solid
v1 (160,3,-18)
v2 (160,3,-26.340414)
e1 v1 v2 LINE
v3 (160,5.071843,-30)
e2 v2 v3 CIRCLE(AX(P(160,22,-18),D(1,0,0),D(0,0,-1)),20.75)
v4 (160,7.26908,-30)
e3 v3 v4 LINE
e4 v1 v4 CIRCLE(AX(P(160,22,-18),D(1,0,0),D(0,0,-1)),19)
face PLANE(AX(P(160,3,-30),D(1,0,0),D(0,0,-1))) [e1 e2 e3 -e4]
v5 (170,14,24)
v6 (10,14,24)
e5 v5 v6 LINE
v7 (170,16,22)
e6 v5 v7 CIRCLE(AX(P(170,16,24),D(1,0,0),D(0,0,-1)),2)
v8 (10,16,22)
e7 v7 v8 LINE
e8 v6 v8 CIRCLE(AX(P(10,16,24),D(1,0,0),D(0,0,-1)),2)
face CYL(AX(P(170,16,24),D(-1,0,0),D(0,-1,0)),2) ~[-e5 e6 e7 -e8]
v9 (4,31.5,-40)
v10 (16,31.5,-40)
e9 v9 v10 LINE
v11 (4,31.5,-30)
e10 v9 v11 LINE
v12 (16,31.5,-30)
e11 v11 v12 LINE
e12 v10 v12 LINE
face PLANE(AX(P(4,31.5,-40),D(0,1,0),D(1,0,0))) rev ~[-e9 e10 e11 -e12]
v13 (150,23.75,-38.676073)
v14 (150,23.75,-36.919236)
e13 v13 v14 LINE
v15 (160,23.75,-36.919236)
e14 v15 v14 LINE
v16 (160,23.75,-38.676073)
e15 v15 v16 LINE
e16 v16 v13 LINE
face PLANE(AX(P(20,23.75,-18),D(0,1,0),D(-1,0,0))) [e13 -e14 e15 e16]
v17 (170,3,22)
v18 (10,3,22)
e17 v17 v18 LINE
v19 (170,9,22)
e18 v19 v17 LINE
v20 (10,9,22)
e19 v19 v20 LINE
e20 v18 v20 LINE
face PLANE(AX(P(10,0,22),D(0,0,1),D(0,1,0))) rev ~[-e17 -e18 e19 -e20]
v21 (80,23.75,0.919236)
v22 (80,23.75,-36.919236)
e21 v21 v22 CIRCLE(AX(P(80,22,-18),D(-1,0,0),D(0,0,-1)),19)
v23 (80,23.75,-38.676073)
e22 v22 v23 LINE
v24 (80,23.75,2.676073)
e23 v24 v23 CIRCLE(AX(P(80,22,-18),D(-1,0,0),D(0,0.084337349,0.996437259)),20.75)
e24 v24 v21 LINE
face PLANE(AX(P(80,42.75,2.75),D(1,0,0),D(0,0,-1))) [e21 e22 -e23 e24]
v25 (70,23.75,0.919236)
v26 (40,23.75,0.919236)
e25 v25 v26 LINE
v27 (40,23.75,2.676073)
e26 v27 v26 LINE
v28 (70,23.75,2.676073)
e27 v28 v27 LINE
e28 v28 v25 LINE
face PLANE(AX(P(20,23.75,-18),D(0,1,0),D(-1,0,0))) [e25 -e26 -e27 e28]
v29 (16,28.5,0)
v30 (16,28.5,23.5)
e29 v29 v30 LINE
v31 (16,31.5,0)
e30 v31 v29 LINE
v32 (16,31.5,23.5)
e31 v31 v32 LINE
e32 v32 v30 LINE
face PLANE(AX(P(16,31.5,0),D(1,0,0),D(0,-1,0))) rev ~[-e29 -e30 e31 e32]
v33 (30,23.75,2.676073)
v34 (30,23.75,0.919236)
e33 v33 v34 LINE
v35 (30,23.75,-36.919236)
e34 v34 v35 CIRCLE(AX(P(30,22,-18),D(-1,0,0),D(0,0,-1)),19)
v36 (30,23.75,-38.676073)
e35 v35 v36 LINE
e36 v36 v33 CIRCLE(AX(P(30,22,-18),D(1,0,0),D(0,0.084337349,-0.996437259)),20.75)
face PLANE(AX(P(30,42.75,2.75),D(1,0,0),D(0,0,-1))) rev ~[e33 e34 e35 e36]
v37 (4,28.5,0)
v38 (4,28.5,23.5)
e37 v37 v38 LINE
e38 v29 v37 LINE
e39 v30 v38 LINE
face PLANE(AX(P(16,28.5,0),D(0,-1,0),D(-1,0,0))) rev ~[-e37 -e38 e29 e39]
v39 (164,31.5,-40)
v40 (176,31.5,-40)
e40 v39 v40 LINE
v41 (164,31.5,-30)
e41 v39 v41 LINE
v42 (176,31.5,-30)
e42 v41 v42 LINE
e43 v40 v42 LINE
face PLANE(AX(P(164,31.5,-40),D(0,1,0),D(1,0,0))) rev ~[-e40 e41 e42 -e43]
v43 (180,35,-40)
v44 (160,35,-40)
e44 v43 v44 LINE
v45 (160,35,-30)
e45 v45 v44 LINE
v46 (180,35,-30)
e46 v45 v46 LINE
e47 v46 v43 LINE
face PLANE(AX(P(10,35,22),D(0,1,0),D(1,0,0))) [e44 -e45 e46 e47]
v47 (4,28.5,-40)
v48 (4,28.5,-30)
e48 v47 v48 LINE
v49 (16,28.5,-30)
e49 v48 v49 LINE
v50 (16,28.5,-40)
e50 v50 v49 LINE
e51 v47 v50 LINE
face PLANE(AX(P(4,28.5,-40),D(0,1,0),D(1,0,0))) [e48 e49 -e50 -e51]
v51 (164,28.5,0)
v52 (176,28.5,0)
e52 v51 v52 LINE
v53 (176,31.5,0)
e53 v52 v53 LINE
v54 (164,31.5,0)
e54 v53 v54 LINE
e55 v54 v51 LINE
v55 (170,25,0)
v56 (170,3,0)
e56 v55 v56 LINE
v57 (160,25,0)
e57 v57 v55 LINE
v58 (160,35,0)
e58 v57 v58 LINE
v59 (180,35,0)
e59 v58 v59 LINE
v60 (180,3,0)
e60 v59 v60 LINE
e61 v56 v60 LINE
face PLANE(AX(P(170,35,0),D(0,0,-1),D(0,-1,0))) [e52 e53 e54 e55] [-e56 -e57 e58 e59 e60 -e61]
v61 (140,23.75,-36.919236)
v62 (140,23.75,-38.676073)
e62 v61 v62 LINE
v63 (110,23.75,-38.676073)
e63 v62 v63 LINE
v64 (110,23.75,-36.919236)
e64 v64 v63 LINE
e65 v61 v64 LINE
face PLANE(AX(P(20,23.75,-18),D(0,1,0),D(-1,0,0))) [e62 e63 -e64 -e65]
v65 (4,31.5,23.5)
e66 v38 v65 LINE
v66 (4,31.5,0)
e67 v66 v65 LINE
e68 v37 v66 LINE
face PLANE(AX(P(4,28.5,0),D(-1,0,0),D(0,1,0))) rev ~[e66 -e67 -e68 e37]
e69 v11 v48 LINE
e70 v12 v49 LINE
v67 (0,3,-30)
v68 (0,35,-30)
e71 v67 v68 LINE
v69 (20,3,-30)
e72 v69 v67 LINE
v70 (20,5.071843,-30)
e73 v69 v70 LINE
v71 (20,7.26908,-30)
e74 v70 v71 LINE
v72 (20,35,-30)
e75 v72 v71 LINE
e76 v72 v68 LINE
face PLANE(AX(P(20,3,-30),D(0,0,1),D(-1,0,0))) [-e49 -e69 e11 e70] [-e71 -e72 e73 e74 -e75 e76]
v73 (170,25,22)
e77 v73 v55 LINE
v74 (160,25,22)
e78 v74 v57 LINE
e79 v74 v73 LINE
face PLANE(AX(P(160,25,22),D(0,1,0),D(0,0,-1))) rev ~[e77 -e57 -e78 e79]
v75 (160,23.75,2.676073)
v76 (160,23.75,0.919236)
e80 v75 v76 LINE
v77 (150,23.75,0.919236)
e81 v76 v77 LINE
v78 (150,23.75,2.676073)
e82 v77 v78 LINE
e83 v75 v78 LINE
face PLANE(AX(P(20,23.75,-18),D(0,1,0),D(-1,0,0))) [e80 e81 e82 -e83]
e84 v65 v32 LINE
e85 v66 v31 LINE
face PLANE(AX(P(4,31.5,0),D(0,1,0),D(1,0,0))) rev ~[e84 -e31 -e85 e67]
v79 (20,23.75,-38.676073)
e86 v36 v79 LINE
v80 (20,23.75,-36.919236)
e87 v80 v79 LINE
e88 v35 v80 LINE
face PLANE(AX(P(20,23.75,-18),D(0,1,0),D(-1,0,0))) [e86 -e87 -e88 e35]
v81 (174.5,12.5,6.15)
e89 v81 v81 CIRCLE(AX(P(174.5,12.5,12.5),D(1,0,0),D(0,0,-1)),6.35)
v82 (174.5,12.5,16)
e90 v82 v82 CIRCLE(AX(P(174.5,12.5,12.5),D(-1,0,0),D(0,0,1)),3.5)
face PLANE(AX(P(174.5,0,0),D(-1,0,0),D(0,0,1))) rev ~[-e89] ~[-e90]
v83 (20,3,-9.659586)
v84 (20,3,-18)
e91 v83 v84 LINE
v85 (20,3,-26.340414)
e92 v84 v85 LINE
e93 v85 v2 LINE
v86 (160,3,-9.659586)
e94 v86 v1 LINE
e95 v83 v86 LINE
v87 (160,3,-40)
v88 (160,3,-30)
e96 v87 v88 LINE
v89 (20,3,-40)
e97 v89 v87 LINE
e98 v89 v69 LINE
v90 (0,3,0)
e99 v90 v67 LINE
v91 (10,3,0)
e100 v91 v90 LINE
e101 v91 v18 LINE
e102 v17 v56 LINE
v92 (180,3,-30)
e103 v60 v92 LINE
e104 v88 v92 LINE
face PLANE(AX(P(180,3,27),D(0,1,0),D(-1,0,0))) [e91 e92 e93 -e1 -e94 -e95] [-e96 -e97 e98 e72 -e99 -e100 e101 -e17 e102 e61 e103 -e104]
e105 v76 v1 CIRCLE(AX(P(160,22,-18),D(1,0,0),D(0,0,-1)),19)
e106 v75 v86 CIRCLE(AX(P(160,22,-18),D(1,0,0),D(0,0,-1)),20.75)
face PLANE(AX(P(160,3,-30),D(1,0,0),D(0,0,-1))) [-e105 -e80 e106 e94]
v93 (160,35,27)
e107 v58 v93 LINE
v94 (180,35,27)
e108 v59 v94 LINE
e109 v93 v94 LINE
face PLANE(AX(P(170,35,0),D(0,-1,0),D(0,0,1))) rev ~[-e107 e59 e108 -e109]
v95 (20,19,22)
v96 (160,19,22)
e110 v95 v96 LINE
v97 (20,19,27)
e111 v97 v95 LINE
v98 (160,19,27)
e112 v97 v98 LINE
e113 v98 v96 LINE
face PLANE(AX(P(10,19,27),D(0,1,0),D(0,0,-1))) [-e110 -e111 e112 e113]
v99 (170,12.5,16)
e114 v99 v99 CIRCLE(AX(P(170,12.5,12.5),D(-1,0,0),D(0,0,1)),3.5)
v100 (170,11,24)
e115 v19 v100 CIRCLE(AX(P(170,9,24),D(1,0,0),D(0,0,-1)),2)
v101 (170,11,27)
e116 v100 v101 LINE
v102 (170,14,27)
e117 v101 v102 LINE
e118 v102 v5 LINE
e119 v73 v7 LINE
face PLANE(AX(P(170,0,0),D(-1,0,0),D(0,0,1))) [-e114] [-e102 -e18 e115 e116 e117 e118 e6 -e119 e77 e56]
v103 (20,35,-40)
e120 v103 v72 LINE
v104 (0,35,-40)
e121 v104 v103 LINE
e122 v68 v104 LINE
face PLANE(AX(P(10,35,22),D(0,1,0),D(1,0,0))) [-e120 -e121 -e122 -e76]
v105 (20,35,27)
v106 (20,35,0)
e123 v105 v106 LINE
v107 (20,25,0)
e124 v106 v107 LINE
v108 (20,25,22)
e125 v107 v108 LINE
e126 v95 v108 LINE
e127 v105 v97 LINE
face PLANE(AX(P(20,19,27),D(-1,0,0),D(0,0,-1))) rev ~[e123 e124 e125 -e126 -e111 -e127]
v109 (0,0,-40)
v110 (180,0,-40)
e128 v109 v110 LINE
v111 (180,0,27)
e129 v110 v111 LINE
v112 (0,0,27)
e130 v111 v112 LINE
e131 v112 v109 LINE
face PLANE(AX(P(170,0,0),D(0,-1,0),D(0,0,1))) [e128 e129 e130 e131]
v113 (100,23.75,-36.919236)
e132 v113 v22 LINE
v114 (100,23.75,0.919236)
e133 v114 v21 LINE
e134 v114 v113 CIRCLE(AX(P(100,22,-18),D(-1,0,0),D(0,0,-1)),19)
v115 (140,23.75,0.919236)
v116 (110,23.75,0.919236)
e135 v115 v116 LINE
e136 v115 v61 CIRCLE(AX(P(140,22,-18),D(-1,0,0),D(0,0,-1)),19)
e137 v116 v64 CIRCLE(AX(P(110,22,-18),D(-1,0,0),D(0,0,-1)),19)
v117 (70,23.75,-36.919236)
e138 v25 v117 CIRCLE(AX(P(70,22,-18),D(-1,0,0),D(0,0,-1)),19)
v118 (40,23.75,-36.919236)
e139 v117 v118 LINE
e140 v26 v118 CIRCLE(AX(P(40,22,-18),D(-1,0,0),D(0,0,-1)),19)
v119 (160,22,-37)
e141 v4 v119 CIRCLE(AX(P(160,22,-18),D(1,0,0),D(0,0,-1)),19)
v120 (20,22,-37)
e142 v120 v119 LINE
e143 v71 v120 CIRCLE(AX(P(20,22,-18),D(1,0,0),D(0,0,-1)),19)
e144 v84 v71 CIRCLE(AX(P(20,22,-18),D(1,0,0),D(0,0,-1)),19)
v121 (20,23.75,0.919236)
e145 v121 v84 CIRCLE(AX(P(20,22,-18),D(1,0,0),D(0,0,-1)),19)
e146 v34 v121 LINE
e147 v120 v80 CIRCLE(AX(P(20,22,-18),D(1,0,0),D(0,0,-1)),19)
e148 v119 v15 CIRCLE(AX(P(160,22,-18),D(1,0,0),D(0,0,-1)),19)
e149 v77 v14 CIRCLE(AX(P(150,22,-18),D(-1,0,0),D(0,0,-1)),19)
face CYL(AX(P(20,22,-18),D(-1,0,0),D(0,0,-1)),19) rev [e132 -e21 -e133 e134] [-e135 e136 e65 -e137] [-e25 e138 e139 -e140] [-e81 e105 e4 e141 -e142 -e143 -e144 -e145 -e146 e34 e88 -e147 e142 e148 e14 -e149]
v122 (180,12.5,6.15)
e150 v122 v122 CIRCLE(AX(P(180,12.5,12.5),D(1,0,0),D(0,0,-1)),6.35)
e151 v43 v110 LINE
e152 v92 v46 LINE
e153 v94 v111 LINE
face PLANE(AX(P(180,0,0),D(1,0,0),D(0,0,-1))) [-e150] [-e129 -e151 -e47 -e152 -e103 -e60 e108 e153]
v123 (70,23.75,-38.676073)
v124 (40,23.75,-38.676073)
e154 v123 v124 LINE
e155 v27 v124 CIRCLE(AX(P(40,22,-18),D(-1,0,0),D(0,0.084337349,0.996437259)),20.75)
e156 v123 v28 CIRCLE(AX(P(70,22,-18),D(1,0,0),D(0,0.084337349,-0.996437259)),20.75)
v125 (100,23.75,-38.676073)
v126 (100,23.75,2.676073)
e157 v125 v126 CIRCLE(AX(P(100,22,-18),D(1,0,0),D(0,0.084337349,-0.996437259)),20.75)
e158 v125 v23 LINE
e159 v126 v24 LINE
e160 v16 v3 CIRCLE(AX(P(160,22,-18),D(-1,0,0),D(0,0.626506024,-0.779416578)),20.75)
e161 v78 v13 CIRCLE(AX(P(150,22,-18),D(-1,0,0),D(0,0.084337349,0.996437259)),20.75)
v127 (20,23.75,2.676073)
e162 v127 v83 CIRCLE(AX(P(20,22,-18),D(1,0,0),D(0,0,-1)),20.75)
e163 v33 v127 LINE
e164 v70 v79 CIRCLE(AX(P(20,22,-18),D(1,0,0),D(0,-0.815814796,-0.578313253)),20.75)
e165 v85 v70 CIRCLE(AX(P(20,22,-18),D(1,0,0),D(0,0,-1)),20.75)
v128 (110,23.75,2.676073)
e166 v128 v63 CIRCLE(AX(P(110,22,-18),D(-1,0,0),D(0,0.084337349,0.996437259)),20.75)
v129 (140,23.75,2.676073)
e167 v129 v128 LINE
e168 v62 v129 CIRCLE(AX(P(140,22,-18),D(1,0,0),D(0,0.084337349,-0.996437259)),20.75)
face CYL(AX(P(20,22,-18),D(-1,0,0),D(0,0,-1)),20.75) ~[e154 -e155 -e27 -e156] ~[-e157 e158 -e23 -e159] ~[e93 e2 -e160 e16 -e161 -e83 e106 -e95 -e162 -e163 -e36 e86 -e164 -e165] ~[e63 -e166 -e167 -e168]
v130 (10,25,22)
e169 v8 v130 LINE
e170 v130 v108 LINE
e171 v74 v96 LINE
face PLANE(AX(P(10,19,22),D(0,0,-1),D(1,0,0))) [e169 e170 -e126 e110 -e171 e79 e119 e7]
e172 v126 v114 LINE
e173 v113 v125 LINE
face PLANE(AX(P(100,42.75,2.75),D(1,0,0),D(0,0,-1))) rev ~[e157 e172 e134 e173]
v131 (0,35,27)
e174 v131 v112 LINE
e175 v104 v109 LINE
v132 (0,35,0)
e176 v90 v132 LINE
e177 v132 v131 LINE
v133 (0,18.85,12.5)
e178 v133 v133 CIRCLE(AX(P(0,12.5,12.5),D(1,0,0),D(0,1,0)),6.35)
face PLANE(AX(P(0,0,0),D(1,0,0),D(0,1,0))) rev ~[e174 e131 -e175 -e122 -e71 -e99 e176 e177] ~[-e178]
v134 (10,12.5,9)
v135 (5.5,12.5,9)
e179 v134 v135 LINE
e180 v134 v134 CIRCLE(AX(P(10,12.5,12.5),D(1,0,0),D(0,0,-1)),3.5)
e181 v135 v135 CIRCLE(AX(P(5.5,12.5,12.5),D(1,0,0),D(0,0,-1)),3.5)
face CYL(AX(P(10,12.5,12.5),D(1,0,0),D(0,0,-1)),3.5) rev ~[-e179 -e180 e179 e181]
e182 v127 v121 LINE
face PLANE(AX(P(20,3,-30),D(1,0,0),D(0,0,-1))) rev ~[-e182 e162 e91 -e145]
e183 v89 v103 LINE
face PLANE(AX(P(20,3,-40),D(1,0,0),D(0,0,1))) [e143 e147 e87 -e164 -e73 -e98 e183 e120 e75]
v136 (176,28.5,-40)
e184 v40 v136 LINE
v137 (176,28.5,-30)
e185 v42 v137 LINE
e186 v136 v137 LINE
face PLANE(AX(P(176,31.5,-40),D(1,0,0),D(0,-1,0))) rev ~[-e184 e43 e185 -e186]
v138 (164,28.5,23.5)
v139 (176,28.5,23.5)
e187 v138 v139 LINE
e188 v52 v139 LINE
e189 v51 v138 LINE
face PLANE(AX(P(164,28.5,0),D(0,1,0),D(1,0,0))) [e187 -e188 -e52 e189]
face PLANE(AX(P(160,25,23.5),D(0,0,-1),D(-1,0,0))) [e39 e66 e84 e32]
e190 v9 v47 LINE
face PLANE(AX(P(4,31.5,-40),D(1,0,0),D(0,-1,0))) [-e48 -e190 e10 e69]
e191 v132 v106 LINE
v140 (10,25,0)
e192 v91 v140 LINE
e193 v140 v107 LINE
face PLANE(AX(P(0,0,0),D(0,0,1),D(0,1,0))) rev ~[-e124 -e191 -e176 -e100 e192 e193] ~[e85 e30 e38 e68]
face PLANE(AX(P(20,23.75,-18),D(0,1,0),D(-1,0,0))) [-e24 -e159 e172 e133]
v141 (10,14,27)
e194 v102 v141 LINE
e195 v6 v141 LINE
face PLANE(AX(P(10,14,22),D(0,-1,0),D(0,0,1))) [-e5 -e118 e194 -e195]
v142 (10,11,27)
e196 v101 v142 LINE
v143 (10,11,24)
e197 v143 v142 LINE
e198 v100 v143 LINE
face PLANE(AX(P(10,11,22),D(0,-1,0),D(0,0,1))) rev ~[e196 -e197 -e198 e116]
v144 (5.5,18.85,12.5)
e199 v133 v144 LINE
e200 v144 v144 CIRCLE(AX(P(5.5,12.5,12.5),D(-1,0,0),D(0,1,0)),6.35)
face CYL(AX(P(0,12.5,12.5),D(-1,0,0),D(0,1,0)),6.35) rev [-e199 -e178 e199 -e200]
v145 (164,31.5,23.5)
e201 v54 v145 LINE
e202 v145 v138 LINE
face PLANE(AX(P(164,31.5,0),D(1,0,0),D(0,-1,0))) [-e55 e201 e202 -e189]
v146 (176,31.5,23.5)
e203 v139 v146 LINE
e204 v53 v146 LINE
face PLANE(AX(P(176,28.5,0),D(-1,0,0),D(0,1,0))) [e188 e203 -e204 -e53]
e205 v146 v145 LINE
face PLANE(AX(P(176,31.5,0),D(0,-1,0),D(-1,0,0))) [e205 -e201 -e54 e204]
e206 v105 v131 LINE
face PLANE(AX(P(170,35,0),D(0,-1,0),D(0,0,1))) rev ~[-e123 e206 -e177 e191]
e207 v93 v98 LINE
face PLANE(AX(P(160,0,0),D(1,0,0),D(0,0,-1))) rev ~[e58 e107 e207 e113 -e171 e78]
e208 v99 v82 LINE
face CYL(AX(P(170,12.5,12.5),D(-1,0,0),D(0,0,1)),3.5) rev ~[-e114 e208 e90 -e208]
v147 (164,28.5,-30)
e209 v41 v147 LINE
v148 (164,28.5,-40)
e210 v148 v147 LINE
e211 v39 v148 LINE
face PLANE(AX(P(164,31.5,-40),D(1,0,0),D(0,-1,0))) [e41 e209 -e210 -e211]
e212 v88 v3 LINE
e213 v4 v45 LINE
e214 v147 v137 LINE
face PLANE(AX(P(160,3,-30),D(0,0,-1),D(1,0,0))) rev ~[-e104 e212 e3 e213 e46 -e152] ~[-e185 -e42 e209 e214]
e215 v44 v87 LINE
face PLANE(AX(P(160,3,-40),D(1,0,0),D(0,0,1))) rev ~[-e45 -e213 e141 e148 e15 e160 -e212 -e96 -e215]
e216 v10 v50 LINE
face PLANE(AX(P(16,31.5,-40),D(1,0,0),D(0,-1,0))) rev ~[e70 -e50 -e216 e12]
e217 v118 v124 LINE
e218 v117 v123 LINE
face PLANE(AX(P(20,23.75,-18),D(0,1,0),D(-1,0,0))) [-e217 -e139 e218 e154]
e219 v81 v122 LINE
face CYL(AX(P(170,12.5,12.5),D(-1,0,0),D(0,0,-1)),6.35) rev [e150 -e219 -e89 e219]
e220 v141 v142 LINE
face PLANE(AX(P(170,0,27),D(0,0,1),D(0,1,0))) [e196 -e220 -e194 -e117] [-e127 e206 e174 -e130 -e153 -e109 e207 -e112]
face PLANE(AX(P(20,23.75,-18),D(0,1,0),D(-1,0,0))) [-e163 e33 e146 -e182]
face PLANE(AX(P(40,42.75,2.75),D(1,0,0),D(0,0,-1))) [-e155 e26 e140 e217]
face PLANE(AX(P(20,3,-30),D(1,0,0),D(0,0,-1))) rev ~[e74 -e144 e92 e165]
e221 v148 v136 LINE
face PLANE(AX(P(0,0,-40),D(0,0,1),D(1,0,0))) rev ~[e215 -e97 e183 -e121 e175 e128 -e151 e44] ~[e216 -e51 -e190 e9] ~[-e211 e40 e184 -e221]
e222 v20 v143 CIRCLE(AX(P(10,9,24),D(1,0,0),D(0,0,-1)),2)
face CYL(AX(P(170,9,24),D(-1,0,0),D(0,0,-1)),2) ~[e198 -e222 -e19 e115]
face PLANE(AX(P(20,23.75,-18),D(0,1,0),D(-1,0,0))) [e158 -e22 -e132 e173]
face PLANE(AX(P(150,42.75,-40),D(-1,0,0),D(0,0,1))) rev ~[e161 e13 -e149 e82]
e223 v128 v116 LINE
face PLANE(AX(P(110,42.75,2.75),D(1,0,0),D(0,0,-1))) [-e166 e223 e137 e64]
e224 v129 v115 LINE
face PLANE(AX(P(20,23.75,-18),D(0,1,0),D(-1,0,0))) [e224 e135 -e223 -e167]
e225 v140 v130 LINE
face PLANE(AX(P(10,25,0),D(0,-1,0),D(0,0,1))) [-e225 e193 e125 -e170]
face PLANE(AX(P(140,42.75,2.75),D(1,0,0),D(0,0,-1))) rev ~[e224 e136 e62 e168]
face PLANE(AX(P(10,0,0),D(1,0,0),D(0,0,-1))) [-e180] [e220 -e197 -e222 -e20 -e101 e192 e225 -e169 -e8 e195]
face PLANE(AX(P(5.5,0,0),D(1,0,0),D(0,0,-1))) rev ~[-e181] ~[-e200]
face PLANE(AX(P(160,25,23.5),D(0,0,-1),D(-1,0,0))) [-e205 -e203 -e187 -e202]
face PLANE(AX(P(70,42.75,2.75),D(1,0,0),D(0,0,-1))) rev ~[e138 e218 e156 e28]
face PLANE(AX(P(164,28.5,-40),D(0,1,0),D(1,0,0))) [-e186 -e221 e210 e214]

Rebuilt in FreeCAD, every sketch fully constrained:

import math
import FreeCAD as App
import Part
import Sketcher
from FreeCAD import Vector


def edges_at(feature, points):
    """Names of the edges that pass closest to the given points."""
    edges = feature.Shape.Edges
    near = lambda p: min(range(len(edges)), key=lambda i: edges[i].distToShape(Part.Vertex(*p))[0])
    return sorted({f"Edge{near(p) + 1}" for p in points})


def add_polygon(sketch, points):
    """Adds a closed chain of lines whose ends are joined by coincident constraints."""
    first, n = sketch.GeometryCount, len(points)
    for a, b in zip(points, points[1:] + points[:1]):
        sketch.addGeometry(Part.LineSegment(App.Vector(*a, 0), App.Vector(*b, 0)), False)
    for i in range(n):
        sketch.addConstraint(Sketcher.Constraint("Coincident", first + i, 2, first + (i + 1) % n, 1))

doc = App.newDocument("Part")
body = doc.addObject("PartDesign::Body", "Body")

sketch1 = body.newObject("Sketcher::SketchObject", "Sketch")
sketch1.AttachmentSupport = (doc.getObject("YZ_Plane"), [""])
sketch1.MapMode = "FlatFace"
add_polygon(sketch1, [(0, 27), (0, 0), (35, 0), (35, 27)])
sketch1.addGeometry(Part.Circle(Vector(12, 12, 0), Vector(0, 0, 1), 6), False)
sketch1.addConstraint([
    Sketcher.Constraint("Vertical", 0),
    Sketcher.Constraint("Horizontal", 1),
    Sketcher.Constraint("Vertical", 2),
    Sketcher.Constraint("Horizontal", 3),
    Sketcher.Constraint("Coincident", 0, 2, -1, 1),
    Sketcher.Constraint("Diameter", 4, 12.7),
    Sketcher.Constraint("DistanceX", 1, 1, 1, 2, 35.0),
    Sketcher.Constraint("DistanceY", 0, 2, 0, 1, 27.0),
    Sketcher.Constraint("DistanceX", -1, 1, 4, 3, 12.5),
    Sketcher.Constraint("DistanceY", -1, 1, 4, 3, 12.5),
])
pad1 = body.newObject("PartDesign::Pad", "Pad")
pad1.Profile = sketch1
pad1.Length = 10

sketch2 = body.newObject("Sketcher::SketchObject", "Sketch001")
sketch2.AttachmentSupport = (doc.getObject("YZ_Plane"), [""])
sketch2.MapMode = "FlatFace"
sketch2.AttachmentOffset = App.Placement(Vector(0, 0, 10), App.Rotation())
add_polygon(sketch2, [(25, 0), (35, 0), (35, 27), (25, 27)])
sketch2.addConstraint([
    Sketcher.Constraint("Horizontal", 0),
    Sketcher.Constraint("Vertical", 1),
    Sketcher.Constraint("Horizontal", 2),
    Sketcher.Constraint("Vertical", 3),
    Sketcher.Constraint("PointOnObject", 0, 2, -1),
    Sketcher.Constraint("DistanceX", 0, 1, 0, 2, 10.0),
    Sketcher.Constraint("DistanceY", 1, 1, 1, 2, 27.0),
    Sketcher.Constraint("DistanceX", -1, 1, 0, 2, 35.0),
])
pad2 = body.newObject("PartDesign::Pad", "Pad001")
pad2.Profile = sketch2
pad2.Length = 10

sketch3 = body.newObject("Sketcher::SketchObject", "Sketch002")
sketch3.AttachmentSupport = (doc.getObject("YZ_Plane"), [""])
sketch3.MapMode = "FlatFace"
sketch3.AttachmentOffset = App.Placement(Vector(0, 0, 10), App.Rotation())
add_polygon(sketch3, [(19, 22), (19, 27), (14, 27), (14, 22)])
add_polygon(sketch3, [(11, 22), (11, 27), (0, 27), (0, 22)])
sketch3.addConstraint([
    Sketcher.Constraint("Vertical", 0),
    Sketcher.Constraint("Horizontal", 1),
    Sketcher.Constraint("Vertical", 2),
    Sketcher.Constraint("Horizontal", 3),
    Sketcher.Constraint("Vertical", 4),
    Sketcher.Constraint("Horizontal", 5),
    Sketcher.Constraint("Vertical", 6),
    Sketcher.Constraint("Horizontal", 7),
    Sketcher.Constraint("PointOnObject", 5, 2, -2),
    Sketcher.Constraint("Horizontal", 1, 2, 4, 2),
    Sketcher.Constraint("Horizontal", 3, 2, 6, 2),
    Sketcher.Constraint("Equal", 3, 0),
    Sketcher.Constraint("DistanceX", 1, 2, 1, 1, 5.0),
    Sketcher.Constraint("DistanceX", 5, 2, 5, 1, 11.0),
    Sketcher.Constraint("DistanceX", -1, 1, 0, 2, 19.0),
    Sketcher.Constraint("DistanceY", -1, 1, 0, 2, 27.0),
])
pad3 = body.newObject("PartDesign::Pad", "Pad002")
pad3.Profile = sketch3
pad3.Length = 150

sketch4 = body.newObject("Sketcher::SketchObject", "Sketch003")
sketch4.AttachmentSupport = (doc.getObject("XZ_Plane"), [""])
sketch4.MapMode = "FlatFace"
sketch4.AttachmentOffset = App.Placement(Vector(0, 0, -19), App.Rotation())
add_polygon(sketch4, [(10, 22), (10, 27), (20, 27), (20, 22)])
sketch4.addConstraint([
    Sketcher.Constraint("Vertical", 0),
    Sketcher.Constraint("Horizontal", 1),
    Sketcher.Constraint("Vertical", 2),
    Sketcher.Constraint("Horizontal", 3),
    Sketcher.Constraint("DistanceX", 1, 1, 1, 2, 10.0),
    Sketcher.Constraint("DistanceX", -1, 1, 0, 2, 10.0),
    Sketcher.Constraint("DistanceY", 0, 1, 0, 2, 5.0),
    Sketcher.Constraint("DistanceY", -1, 1, 0, 2, 27.0),
])
pad4 = body.newObject("PartDesign::Pad", "Pad003")
pad4.Profile = sketch4
pad4.Length = 7.5
pad4.Reversed = True

sketch5 = body.newObject("Sketcher::SketchObject", "Sketch004")
sketch5.AttachmentSupport = (doc.getObject("YZ_Plane"), [""])
sketch5.MapMode = "FlatFace"
sketch5.AttachmentOffset = App.Placement(Vector(0, 0, 160), App.Rotation())
add_polygon(sketch5, [(35, 27), (14, 27), (14, 22), (25, 22), (25, 0), (35, 0)])
add_polygon(sketch5, [(0, 22), (11, 22), (11, 27), (0, 27)])
sketch5.addConstraint([
    Sketcher.Constraint("Horizontal", 0),
    Sketcher.Constraint("Vertical", 1),
    Sketcher.Constraint("Horizontal", 2),
    Sketcher.Constraint("Vertical", 3),
    Sketcher.Constraint("Horizontal", 4),
    Sketcher.Constraint("Vertical", 5),
    Sketcher.Constraint("Horizontal", 6),
    Sketcher.Constraint("Vertical", 7),
    Sketcher.Constraint("Horizontal", 8),
    Sketcher.Constraint("Vertical", 9),
    Sketcher.Constraint("PointOnObject", 3, 2, -1),
    Sketcher.Constraint("PointOnObject", 8, 2, -2),
    Sketcher.Constraint("Horizontal", 2, 2, 6, 2),
    Sketcher.Constraint("Horizontal", 5, 2, 7, 2),
    Sketcher.Constraint("Equal", 2, 6),
    Sketcher.Constraint("DistanceX", 0, 2, 0, 1, 21.0),
    Sketcher.Constraint("DistanceX", 2, 1, 2, 2, 11.0),
    Sketcher.Constraint("DistanceY", 1, 2, 1, 1, 5.0),
    Sketcher.Constraint("DistanceY", 3, 2, 3, 1, 22.0),
    Sketcher.Constraint("DistanceX", -1, 1, 0, 2, 14.0),
])
pad5 = body.newObject("PartDesign::Pad", "Pad004")
pad5.Profile = sketch5
pad5.Length = 10

sketch6 = body.newObject("Sketcher::SketchObject", "Sketch005")
sketch6.AttachmentSupport = (doc.getObject("YZ_Plane"), [""])
sketch6.MapMode = "FlatFace"
sketch6.AttachmentOffset = App.Placement(Vector(0, 0, 170), App.Rotation())
add_polygon(sketch6, [(0, 0), (35, 0), (35, 27), (0, 27)])
sketch6.addGeometry(Part.Circle(Vector(12, 12, 0), Vector(0, 0, 1), 6), False)
sketch6.addConstraint([
    Sketcher.Constraint("Horizontal", 0),
    Sketcher.Constraint("Vertical", 1),
    Sketcher.Constraint("Horizontal", 2),
    Sketcher.Constraint("Vertical", 3),
    Sketcher.Constraint("Coincident", 3, 2, -1, 1),
    Sketcher.Constraint("Diameter", 4, 12.7),
    Sketcher.Constraint("DistanceX", 0, 1, 0, 2, 35.0),
    Sketcher.Constraint("DistanceY", 1, 1, 1, 2, 27.0),
    Sketcher.Constraint("DistanceX", -1, 1, 4, 3, 12.5),
    Sketcher.Constraint("DistanceY", -1, 1, 4, 3, 12.5),
])
pad6 = body.newObject("PartDesign::Pad", "Pad005")
pad6.Profile = sketch6
pad6.Length = 10
doc.recompute()

fillet = body.newObject("PartDesign::Fillet", "Fillet")
fillet.Base = (pad6, edges_at(pad6, [(90, 11, 22), (90, 14, 22)]))
fillet.Radius = 2

sketch7 = body.newObject("Sketcher::SketchObject", "Sketch006")
sketch7.AttachmentSupport = (doc.getObject("YZ_Plane"), [""])
sketch7.MapMode = "FlatFace"
sketch7.AttachmentOffset = App.Placement(Vector(0, 0, 20), App.Rotation())
add_polygon(sketch7, [(32, 6.5), (35, 6.5), (35, 20.5), (32, 20.5)])
sketch7.addConstraint([
    Sketcher.Constraint("Horizontal", 0),
    Sketcher.Constraint("Vertical", 1),
    Sketcher.Constraint("Horizontal", 2),
    Sketcher.Constraint("Vertical", 3),
    Sketcher.Constraint("DistanceX", 0, 1, 0, 2, 3.0),
    Sketcher.Constraint("DistanceY", 1, 1, 1, 2, 14.0),
    Sketcher.Constraint("DistanceX", -1, 1, 0, 2, 35.0),
    Sketcher.Constraint("DistanceY", -1, 1, 0, 2, 6.5),
])
pad7 = body.newObject("PartDesign::Pad", "Pad006")
pad7.Profile = sketch7
pad7.Length = 140

sketch8 = body.newObject("Sketcher::SketchObject", "Sketch007")
sketch8.AttachmentSupport = (doc.getObject("XY_Plane"), [""])
sketch8.MapMode = "FlatFace"
add_polygon(sketch8, [(176, 28.5), (164, 28.5), (164, 31.5), (176, 31.5)])
add_polygon(sketch8, [(4, 28.5), (4, 31.5), (16, 31.5), (16, 28.5)])
sketch8.addConstraint([
    Sketcher.Constraint("Horizontal", 0),
    Sketcher.Constraint("Vertical", 1),
    Sketcher.Constraint("Horizontal", 2),
    Sketcher.Constraint("Vertical", 3),
    Sketcher.Constraint("Vertical", 4),
    Sketcher.Constraint("Horizontal", 5),
    Sketcher.Constraint("Vertical", 6),
    Sketcher.Constraint("Horizontal", 7),
    Sketcher.Constraint("Horizontal", 2, 2, 4, 2),
    Sketcher.Constraint("Horizontal", 3, 2, 6, 2),
    Sketcher.Constraint("Equal", 2, 5),
    Sketcher.Constraint("DistanceX", 0, 2, 0, 1, 12.0),
    Sketcher.Constraint("DistanceY", 1, 1, 1, 2, 3.0),
    Sketcher.Constraint("DistanceX", -1, 1, 0, 2, 164.0),
    Sketcher.Constraint("DistanceX", -1, 1, 4, 2, 4.0),
    Sketcher.Constraint("DistanceY", -1, 1, 0, 2, 28.5),
])
pocket1 = body.newObject("PartDesign::Pocket", "Pocket")
pocket1.Profile = sketch8
pocket1.Length = 23.5
pocket1.Reversed = True

sketch9 = body.newObject("Sketcher::SketchObject", "Sketch008")
sketch9.AttachmentSupport = (doc.getObject("YZ_Plane"), [""])
sketch9.MapMode = "FlatFace"
sketch9.AttachmentOffset = App.Placement(Vector(0, 0, 170), App.Rotation())
sketch9.addGeometry([
    Part.Circle(Vector(12.5, 12.5, 0), Vector(0, 0, 1), 6.3),
    Part.Circle(Vector(12.5, 12.5, 0), Vector(0, 0, 1), 3.5),
], False)
sketch9.addConstraint([
    Sketcher.Constraint("Coincident", 1, 3, 0, 3),
    Sketcher.Constraint("Diameter", 1, 7.0),
    Sketcher.Constraint("Diameter", 0, 12.7),
    Sketcher.Constraint("DistanceX", -1, 1, 0, 3, 12.5),
    Sketcher.Constraint("DistanceY", -1, 1, 0, 3, 12.5),
])
pad8 = body.newObject("PartDesign::Pad", "Pad007")
pad8.Profile = sketch9
pad8.Length = 4.5

sketch10 = body.newObject("Sketcher::SketchObject", "Sketch009")
sketch10.AttachmentSupport = (doc.getObject("YZ_Plane"), [""])
sketch10.MapMode = "FlatFace"
sketch10.AttachmentOffset = App.Placement(Vector(0, 0, 10), App.Rotation())
sketch10.addGeometry([
    Part.Circle(Vector(12.5, 12.5, 0), Vector(0, 0, 1), 6.3),
    Part.Circle(Vector(12.5, 12.5, 0), Vector(0, 0, 1), 3.5),
], False)
sketch10.addConstraint([
    Sketcher.Constraint("Coincident", 1, 3, 0, 3),
    Sketcher.Constraint("Diameter", 1, 7.0),
    Sketcher.Constraint("Diameter", 0, 12.7),
    Sketcher.Constraint("DistanceX", -1, 1, 0, 3, 12.5),
    Sketcher.Constraint("DistanceY", -1, 1, 0, 3, 12.5),
])
pad9 = body.newObject("PartDesign::Pad", "Pad008")
pad9.Profile = sketch10
pad9.Length = 4.5
pad9.Reversed = True

sketch11 = body.newObject("Sketcher::SketchObject", "Sketch010")
sketch11.AttachmentSupport = (doc.getObject("XY_Plane"), [""])
sketch11.MapMode = "FlatFace"
sketch11.AttachmentOffset = App.Placement(Vector(0, 0, 27), App.Rotation())
add_polygon(sketch11, [(180, 3), (0, 3), (0, 0), (180, 0)])
sketch11.addConstraint([
    Sketcher.Constraint("Horizontal", 0),
    Sketcher.Constraint("Vertical", 1),
    Sketcher.Constraint("Horizontal", 2),
    Sketcher.Constraint("Vertical", 3),
    Sketcher.Constraint("Coincident", 1, 2, -1, 1),
    Sketcher.Constraint("DistanceY", 1, 2, 1, 1, 3.0),
    Sketcher.Constraint("DistanceX", 0, 2, 0, 1, 180.0),
])
pad10 = body.newObject("PartDesign::Pad", "Pad009")
pad10.Profile = sketch11
pad10.Length = 67
pad10.Reversed = True

sketch12 = body.newObject("Sketcher::SketchObject", "Sketch011")
sketch12.AttachmentSupport = (doc.getObject("XZ_Plane"), [""])
sketch12.MapMode = "FlatFace"
sketch12.AttachmentOffset = App.Placement(Vector(0, 0, -3), App.Rotation())
sketch12.addGeometry([
    Part.ArcOfCircle(Part.Circle(Vector(90, -20, 0), Vector(0, 0, 1), 20), math.radians(0), math.radians(180)),
    Part.ArcOfCircle(Part.Circle(Vector(90, -20, 0), Vector(0, 0, 1), 20), math.radians(180), math.radians(360)),
    Part.Circle(Vector(90, -20, 0), Vector(0, 0, 1), 19),
    Part.Circle(Vector(50, -20, 0), Vector(0, 0, 1), 20),
    Part.Circle(Vector(50, -20, 0), Vector(0, 0, 1), 19),
    Part.Circle(Vector(130, -20, 0), Vector(0, 0, 1), 20),
    Part.Circle(Vector(130, -20, 0), Vector(0, 0, 1), 19),
], False)
sketch12.addConstraint([
    Sketcher.Constraint("Tangent", 0, 1, 1, 2),
    Sketcher.Constraint("Coincident", 1, 1, 0, 2),
    Sketcher.Constraint("Coincident", 2, 3, 0, 3),
    Sketcher.Constraint("Coincident", 4, 3, 3, 3),
    Sketcher.Constraint("Coincident", 6, 3, 5, 3),
    Sketcher.Constraint("Equal", 1, 3),
    Sketcher.Constraint("Equal", 2, 4),
    Sketcher.Constraint("Equal", 3, 5),
    Sketcher.Constraint("Equal", 4, 6),
    Sketcher.Constraint("Horizontal", 2, 3, 3, 3),
    Sketcher.Constraint("Horizontal", 4, 3, 5, 3),
    Sketcher.Constraint("Horizontal", 6, 3, 0, 1),
    Sketcher.Constraint("Horizontal", 0, 1, 1, 1),
    Sketcher.Constraint("Diameter", 2, 38.0),
    Sketcher.Constraint("Diameter", 3, 40.0),
    Sketcher.Constraint("DistanceX", -1, 1, 0, 3, 90.0),
    Sketcher.Constraint("DistanceY", 0, 3, -1, 1, 20.0),
    Sketcher.Constraint("DistanceX", -1, 1, 3, 3, 50.0),
    Sketcher.Constraint("DistanceX", -1, 1, 5, 3, 130.0),
])
pad11 = body.newObject("PartDesign::Pad", "Pad010")
pad11.Profile = sketch12
pad11.Length = 30
pad11.Reversed = True

sketch13 = body.newObject("Sketcher::SketchObject", "Sketch012")
sketch13.AttachmentSupport = (doc.getObject("XZ_Plane"), [""])
sketch13.MapMode = "FlatFace"
sketch13.AttachmentOffset = App.Placement(Vector(0, 0, -3), App.Rotation())
add_polygon(sketch13, [(180, -40), (160, -40), (160, -30), (180, -30)])
add_polygon(sketch13, [(0, -40), (0, -30), (20, -30), (20, -40)])
sketch13.addConstraint([
    Sketcher.Constraint("Horizontal", 0),
    Sketcher.Constraint("Vertical", 1),
    Sketcher.Constraint("Horizontal", 2),
    Sketcher.Constraint("Vertical", 3),
    Sketcher.Constraint("Vertical", 4),
    Sketcher.Constraint("Horizontal", 5),
    Sketcher.Constraint("Vertical", 6),
    Sketcher.Constraint("Horizontal", 7),
    Sketcher.Constraint("PointOnObject", 4, 2, -2),
    Sketcher.Constraint("Horizontal", 2, 2, 4, 2),
    Sketcher.Constraint("Horizontal", 3, 2, 6, 2),
    Sketcher.Constraint("Equal", 2, 5),
    Sketcher.Constraint("DistanceY", 1, 1, 1, 2, 10.0),
    Sketcher.Constraint("DistanceX", 0, 2, 0, 1, 20.0),
    Sketcher.Constraint("DistanceX", -1, 1, 0, 2, 160.0),
    Sketcher.Constraint("DistanceY", 0, 2, -1, 1, 40.0),
])
pad12 = body.newObject("PartDesign::Pad", "Pad011")
pad12.Profile = sketch13
pad12.Length = 32
pad12.Reversed = True

sketch14 = body.newObject("Sketcher::SketchObject", "Sketch013")
sketch14.AttachmentSupport = (doc.getObject("XY_Plane"), [""])
sketch14.MapMode = "FlatFace"
sketch14.AttachmentOffset = App.Placement(Vector(0, 0, -40), App.Rotation())
add_polygon(sketch14, [(16, 28.5), (4, 28.5), (4, 31.5), (16, 31.5)])
add_polygon(sketch14, [(176, 28.5), (164, 28.5), (164, 31.5), (176, 31.5)])
sketch14.addConstraint([
    Sketcher.Constraint("Horizontal", 0),
    Sketcher.Constraint("Vertical", 1),
    Sketcher.Constraint("Horizontal", 2),
    Sketcher.Constraint("Vertical", 3),
    Sketcher.Constraint("Horizontal", 4),
    Sketcher.Constraint("Vertical", 5),
    Sketcher.Constraint("Horizontal", 6),
    Sketcher.Constraint("Vertical", 7),
    Sketcher.Constraint("Horizontal", 3, 2, 4, 2),
    Sketcher.Constraint("Horizontal", 2, 2, 5, 2),
    Sketcher.Constraint("Equal", 2, 4),
    Sketcher.Constraint("DistanceX", 0, 2, 0, 1, 12.0),
    Sketcher.Constraint("DistanceY", 1, 1, 1, 2, 3.0),
    Sketcher.Constraint("DistanceX", -1, 1, 0, 2, 4.0),
    Sketcher.Constraint("DistanceX", -1, 1, 4, 2, 164.0),
    Sketcher.Constraint("DistanceY", -1, 1, 0, 2, 28.5),
])
pocket2 = body.newObject("PartDesign::Pocket", "Pocket001")
pocket2.Profile = sketch14
pocket2.Length = 10
pocket2.Reversed = True

sketch15 = body.newObject("Sketcher::SketchObject", "Sketch014")
sketch15.AttachmentSupport = (doc.getObject("XZ_Plane"), [""])
sketch15.MapMode = "FlatFace"
sketch15.AttachmentOffset = App.Placement(Vector(0, 0, -33), App.Rotation())
add_polygon(sketch15, [(26, 3), (157, 3), (157, -46), (26, -46)])
sketch15.addConstraint([
    Sketcher.Constraint("Horizontal", 0),
    Sketcher.Constraint("Vertical", 1),
    Sketcher.Constraint("Horizontal", 2),
    Sketcher.Constraint("Vertical", 3),
    Sketcher.Constraint("DistanceX", 0, 1, 0, 2, 131.1087),
    Sketcher.Constraint("DistanceY", 1, 2, 1, 1, 48.8594),
    Sketcher.Constraint("DistanceX", -1, 1, 0, 2, 157.296),
    Sketcher.Constraint("DistanceY", 1, 2, -1, 1, 45.727),
])
pocket3 = body.newObject("PartDesign::Pocket", "Pocket002")
pocket3.Profile = sketch15
pocket3.Length = 30
pocket3.Reversed = True

sketch16 = body.newObject("Sketcher::SketchObject", "Sketch015")
sketch16.AttachmentSupport = (doc.getObject("XZ_Plane"), [""])
sketch16.MapMode = "FlatFace"
sketch16.AttachmentOffset = App.Placement(Vector(0, 0, -3), App.Rotation())
sketch16.addGeometry([
    Part.ArcOfCircle(Part.Circle(Vector(90, -17, 0), Vector(0, 0, 1), 21), math.radians(0), math.radians(180)),
    Part.ArcOfCircle(Part.Circle(Vector(90, -17, 0), Vector(0, 0, 1), 21), math.radians(180), math.radians(360)),
    Part.Circle(Vector(90, -17, 0), Vector(0, 0, 1), 19),
    Part.Circle(Vector(48, -17, 0), Vector(0, 0, 1), 21),
    Part.Circle(Vector(48, -17, 0), Vector(0, 0, 1), 19),
    Part.Circle(Vector(132, -17, 0), Vector(0, 0, 1), 21),
    Part.Circle(Vector(132, -17, 0), Vector(0, 0, 1), 19),
], False)
sketch16.addConstraint([
    Sketcher.Constraint("Tangent", 0, 1, 1, 2),
    Sketcher.Constraint("Coincident", 1, 1, 0, 2),
    Sketcher.Constraint("Coincident", 2, 3, 0, 3),
    Sketcher.Constraint("Coincident", 4, 3, 3, 3),
    Sketcher.Constraint("Coincident", 6, 3, 5, 3),
    Sketcher.Constraint("Equal", 1, 3),
    Sketcher.Constraint("Equal", 2, 4),
    Sketcher.Constraint("Equal", 3, 5),
    Sketcher.Constraint("Equal", 4, 6),
    Sketcher.Constraint("Horizontal", 2, 3, 3, 3),
    Sketcher.Constraint("Horizontal", 4, 3, 5, 3),
    Sketcher.Constraint("Horizontal", 6, 3, 0, 1),
    Sketcher.Constraint("Horizontal", 0, 1, 1, 1),
    Sketcher.Constraint("Diameter", 2, 38.0),
    Sketcher.Constraint("Diameter", 3, 41.5),
    Sketcher.Constraint("DistanceX", 3, 3, 0, 3, 41.5),
    Sketcher.Constraint("DistanceX", 0, 3, 5, 3, 41.5),
    Sketcher.Constraint("DistanceX", -1, 1, 0, 3, 90.0),
    Sketcher.Constraint("DistanceY", 0, 3, -1, 1, 16.75),
])
pad13 = body.newObject("PartDesign::Pad", "Pad012")
pad13.Profile = sketch16
pad13.Length = 45
pad13.Reversed = True

sketch17 = body.newObject("Sketcher::SketchObject", "Sketch016")
sketch17.AttachmentSupport = (doc.getObject("XZ_Plane"), [""])
sketch17.MapMode = "FlatFace"
sketch17.AttachmentOffset = App.Placement(Vector(0, 0, -35), App.Rotation())
add_polygon(sketch17, [(20, 6), (20, 20), (160, 20), (160, 6)])
sketch17.addConstraint([
    Sketcher.Constraint("Vertical", 0),
    Sketcher.Constraint("Horizontal", 1),
    Sketcher.Constraint("Vertical", 2),
    Sketcher.Constraint("Horizontal", 3),
    Sketcher.Constraint("DistanceX", 1, 1, 1, 2, 140.0),
    Sketcher.Constraint("DistanceY", 0, 1, 0, 2, 14.0),
    Sketcher.Constraint("DistanceX", -1, 1, 0, 2, 20.0),
    Sketcher.Constraint("DistanceY", -1, 1, 0, 2, 20.5),
])
pocket4 = body.newObject("PartDesign::Pocket", "Pocket003")
pocket4.Profile = sketch17
pocket4.Length = 5
pocket4.Reversed = True

sketch18 = body.newObject("Sketcher::SketchObject", "Sketch017")
sketch18.AttachmentSupport = (doc.getObject("XZ_Plane"), [""])
sketch18.MapMode = "FlatFace"
sketch18.AttachmentOffset = App.Placement(Vector(0, 0, -48), App.Rotation())
add_polygon(sketch18, [(157, -46), (26, -46), (26, 7), (157, 7)])
sketch18.addConstraint([
    Sketcher.Constraint("Horizontal", 0),
    Sketcher.Constraint("Vertical", 1),
    Sketcher.Constraint("Horizontal", 2),
    Sketcher.Constraint("Vertical", 3),
    Sketcher.Constraint("DistanceY", 1, 1, 1, 2, 52.37),
    Sketcher.Constraint("DistanceX", 0, 2, 0, 1, 130.3427),
    Sketcher.Constraint("DistanceY", -1, 1, 1, 2, 6.795),
    Sketcher.Constraint("DistanceX", -1, 1, 0, 2, 26.1578),
])
pocket5 = body.newObject("PartDesign::Pocket", "Pocket004")
pocket5.Profile = sketch18
pocket5.Length = 45
pocket5.Reversed = True

sketch19 = body.newObject("Sketcher::SketchObject", "Sketch018")
sketch19.AttachmentSupport = (doc.getObject("YZ_Plane"), [""])
sketch19.MapMode = "FlatFace"
sketch19.AttachmentOffset = App.Placement(Vector(0, 0, 20), App.Rotation())
sketch19.addGeometry([
    Part.LineSegment(Vector(3, -10, 0), Vector(3, -18, 0)),
    Part.LineSegment(Vector(3, -18, 0), Vector(3, -26, 0)),
    Part.ArcOfCircle(Part.Circle(Vector(22, -18, 0), Vector(0, 0, 1), 21), math.radians(-156), math.radians(156)),
    Part.Circle(Vector(22, -18, 0), Vector(0, 0, 1), 19),
], False)
sketch19.addConstraint([
    Sketcher.Constraint("Coincident", 0, 2, 1, 1),
    Sketcher.Constraint("Coincident", 1, 2, 2, 1),
    Sketcher.Constraint("Coincident", 2, 2, 0, 1),
    Sketcher.Constraint("Vertical", 0),
    Sketcher.Constraint("Vertical", 1),
    Sketcher.Constraint("Coincident", 3, 3, 2, 3),
    Sketcher.Constraint("Horizontal", 3, 3, 0, 2),
    Sketcher.Constraint("Radius", 2, 20.75),
    Sketcher.Constraint("Diameter", 3, 38.0),
    Sketcher.Constraint("DistanceX", -1, 1, 2, 3, 22.0),
    Sketcher.Constraint("DistanceY", 2, 3, -1, 1, 18.0),
    Sketcher.Constraint("DistanceX", -1, 1, 0, 2, 3.0),
])
pad14 = body.newObject("PartDesign::Pad", "Pad013")
pad14.Profile = sketch19
pad14.Length = 140

sketch20 = body.newObject("Sketcher::SketchObject", "Sketch019")
sketch20.AttachmentSupport = (doc.getObject("XZ_Plane"), [""])
sketch20.MapMode = "FlatFace"
sketch20.AttachmentOffset = App.Placement(Vector(0, 0, -42.75), App.Rotation())
add_polygon(sketch20, [(30, -40), (20, -40), (20, 3), (30, 3)])
add_polygon(sketch20, [(40, -40), (40, 3), (70, 3), (70, -40)])
add_polygon(sketch20, [(80, -40), (80, 3), (100, 3), (100, -40)])
add_polygon(sketch20, [(110, -40), (110, 3), (140, 3), (140, -40)])
add_polygon(sketch20, [(160, -40), (150, -40), (150, 3), (160, 3)])
sketch20.addConstraint([
    Sketcher.Constraint("Horizontal", 0),
    Sketcher.Constraint("Vertical", 1),
    Sketcher.Constraint("Horizontal", 2),
    Sketcher.Constraint("Vertical", 3),
    Sketcher.Constraint("Vertical", 4),
    Sketcher.Constraint("Horizontal", 5),
    Sketcher.Constraint("Vertical", 6),
    Sketcher.Constraint("Horizontal", 7),
    Sketcher.Constraint("Vertical", 8),
    Sketcher.Constraint("Horizontal", 9),
    Sketcher.Constraint("Vertical", 10),
    Sketcher.Constraint("Horizontal", 11),
    Sketcher.Constraint("Vertical", 12),
    Sketcher.Constraint("Horizontal", 13),
    Sketcher.Constraint("Vertical", 14),
    Sketcher.Constraint("Horizontal", 15),
    Sketcher.Constraint("Horizontal", 16),
    Sketcher.Constraint("Vertical", 17),
    Sketcher.Constraint("Horizontal", 18),
    Sketcher.Constraint("Vertical", 19),
    Sketcher.Constraint("Horizontal", 2, 2, 4, 2),
    Sketcher.Constraint("Horizontal", 3, 2, 6, 2),
    Sketcher.Constraint("Horizontal", 5, 2, 8, 2),
    Sketcher.Constraint("Horizontal", 7, 2, 10, 2),
    Sketcher.Constraint("Horizontal", 9, 2, 12, 2),
    Sketcher.Constraint("Horizontal", 11, 2, 14, 2),
    Sketcher.Constraint("Horizontal", 15, 2, 16, 2),
    Sketcher.Constraint("Horizontal", 13, 2, 17, 2),
    Sketcher.Constraint("Equal", 7, 13),
    Sketcher.Constraint("Equal", 2, 16),
    Sketcher.Constraint("DistanceX", 0, 2, 0, 1, 10.0),
    Sketcher.Constraint("DistanceX", 2, 2, 4, 2, 10.0),
    Sketcher.Constraint("DistanceX", 5, 2, 8, 2, 10.0),
    Sketcher.Constraint("DistanceX", 9, 2, 12, 2, 10.0),
    Sketcher.Constraint("DistanceX", 14, 2, 16, 2, 10.0),
    Sketcher.Constraint("DistanceX", 5, 1, 5, 2, 30.0),
    Sketcher.Constraint("DistanceX", 9, 1, 9, 2, 20.0),
    Sketcher.Constraint("DistanceX", -1, 1, 0, 2, 20.0),
    Sketcher.Constraint("DistanceY", 0, 2, -1, 1, 40.0),
    Sketcher.Constraint("DistanceY", 1, 1, 1, 2, 42.75),
])
pocket6 = body.newObject("PartDesign::Pocket", "Pocket005")
pocket6.Profile = sketch20
pocket6.Length = 19
pocket6.Reversed = True

doc.recompute()
